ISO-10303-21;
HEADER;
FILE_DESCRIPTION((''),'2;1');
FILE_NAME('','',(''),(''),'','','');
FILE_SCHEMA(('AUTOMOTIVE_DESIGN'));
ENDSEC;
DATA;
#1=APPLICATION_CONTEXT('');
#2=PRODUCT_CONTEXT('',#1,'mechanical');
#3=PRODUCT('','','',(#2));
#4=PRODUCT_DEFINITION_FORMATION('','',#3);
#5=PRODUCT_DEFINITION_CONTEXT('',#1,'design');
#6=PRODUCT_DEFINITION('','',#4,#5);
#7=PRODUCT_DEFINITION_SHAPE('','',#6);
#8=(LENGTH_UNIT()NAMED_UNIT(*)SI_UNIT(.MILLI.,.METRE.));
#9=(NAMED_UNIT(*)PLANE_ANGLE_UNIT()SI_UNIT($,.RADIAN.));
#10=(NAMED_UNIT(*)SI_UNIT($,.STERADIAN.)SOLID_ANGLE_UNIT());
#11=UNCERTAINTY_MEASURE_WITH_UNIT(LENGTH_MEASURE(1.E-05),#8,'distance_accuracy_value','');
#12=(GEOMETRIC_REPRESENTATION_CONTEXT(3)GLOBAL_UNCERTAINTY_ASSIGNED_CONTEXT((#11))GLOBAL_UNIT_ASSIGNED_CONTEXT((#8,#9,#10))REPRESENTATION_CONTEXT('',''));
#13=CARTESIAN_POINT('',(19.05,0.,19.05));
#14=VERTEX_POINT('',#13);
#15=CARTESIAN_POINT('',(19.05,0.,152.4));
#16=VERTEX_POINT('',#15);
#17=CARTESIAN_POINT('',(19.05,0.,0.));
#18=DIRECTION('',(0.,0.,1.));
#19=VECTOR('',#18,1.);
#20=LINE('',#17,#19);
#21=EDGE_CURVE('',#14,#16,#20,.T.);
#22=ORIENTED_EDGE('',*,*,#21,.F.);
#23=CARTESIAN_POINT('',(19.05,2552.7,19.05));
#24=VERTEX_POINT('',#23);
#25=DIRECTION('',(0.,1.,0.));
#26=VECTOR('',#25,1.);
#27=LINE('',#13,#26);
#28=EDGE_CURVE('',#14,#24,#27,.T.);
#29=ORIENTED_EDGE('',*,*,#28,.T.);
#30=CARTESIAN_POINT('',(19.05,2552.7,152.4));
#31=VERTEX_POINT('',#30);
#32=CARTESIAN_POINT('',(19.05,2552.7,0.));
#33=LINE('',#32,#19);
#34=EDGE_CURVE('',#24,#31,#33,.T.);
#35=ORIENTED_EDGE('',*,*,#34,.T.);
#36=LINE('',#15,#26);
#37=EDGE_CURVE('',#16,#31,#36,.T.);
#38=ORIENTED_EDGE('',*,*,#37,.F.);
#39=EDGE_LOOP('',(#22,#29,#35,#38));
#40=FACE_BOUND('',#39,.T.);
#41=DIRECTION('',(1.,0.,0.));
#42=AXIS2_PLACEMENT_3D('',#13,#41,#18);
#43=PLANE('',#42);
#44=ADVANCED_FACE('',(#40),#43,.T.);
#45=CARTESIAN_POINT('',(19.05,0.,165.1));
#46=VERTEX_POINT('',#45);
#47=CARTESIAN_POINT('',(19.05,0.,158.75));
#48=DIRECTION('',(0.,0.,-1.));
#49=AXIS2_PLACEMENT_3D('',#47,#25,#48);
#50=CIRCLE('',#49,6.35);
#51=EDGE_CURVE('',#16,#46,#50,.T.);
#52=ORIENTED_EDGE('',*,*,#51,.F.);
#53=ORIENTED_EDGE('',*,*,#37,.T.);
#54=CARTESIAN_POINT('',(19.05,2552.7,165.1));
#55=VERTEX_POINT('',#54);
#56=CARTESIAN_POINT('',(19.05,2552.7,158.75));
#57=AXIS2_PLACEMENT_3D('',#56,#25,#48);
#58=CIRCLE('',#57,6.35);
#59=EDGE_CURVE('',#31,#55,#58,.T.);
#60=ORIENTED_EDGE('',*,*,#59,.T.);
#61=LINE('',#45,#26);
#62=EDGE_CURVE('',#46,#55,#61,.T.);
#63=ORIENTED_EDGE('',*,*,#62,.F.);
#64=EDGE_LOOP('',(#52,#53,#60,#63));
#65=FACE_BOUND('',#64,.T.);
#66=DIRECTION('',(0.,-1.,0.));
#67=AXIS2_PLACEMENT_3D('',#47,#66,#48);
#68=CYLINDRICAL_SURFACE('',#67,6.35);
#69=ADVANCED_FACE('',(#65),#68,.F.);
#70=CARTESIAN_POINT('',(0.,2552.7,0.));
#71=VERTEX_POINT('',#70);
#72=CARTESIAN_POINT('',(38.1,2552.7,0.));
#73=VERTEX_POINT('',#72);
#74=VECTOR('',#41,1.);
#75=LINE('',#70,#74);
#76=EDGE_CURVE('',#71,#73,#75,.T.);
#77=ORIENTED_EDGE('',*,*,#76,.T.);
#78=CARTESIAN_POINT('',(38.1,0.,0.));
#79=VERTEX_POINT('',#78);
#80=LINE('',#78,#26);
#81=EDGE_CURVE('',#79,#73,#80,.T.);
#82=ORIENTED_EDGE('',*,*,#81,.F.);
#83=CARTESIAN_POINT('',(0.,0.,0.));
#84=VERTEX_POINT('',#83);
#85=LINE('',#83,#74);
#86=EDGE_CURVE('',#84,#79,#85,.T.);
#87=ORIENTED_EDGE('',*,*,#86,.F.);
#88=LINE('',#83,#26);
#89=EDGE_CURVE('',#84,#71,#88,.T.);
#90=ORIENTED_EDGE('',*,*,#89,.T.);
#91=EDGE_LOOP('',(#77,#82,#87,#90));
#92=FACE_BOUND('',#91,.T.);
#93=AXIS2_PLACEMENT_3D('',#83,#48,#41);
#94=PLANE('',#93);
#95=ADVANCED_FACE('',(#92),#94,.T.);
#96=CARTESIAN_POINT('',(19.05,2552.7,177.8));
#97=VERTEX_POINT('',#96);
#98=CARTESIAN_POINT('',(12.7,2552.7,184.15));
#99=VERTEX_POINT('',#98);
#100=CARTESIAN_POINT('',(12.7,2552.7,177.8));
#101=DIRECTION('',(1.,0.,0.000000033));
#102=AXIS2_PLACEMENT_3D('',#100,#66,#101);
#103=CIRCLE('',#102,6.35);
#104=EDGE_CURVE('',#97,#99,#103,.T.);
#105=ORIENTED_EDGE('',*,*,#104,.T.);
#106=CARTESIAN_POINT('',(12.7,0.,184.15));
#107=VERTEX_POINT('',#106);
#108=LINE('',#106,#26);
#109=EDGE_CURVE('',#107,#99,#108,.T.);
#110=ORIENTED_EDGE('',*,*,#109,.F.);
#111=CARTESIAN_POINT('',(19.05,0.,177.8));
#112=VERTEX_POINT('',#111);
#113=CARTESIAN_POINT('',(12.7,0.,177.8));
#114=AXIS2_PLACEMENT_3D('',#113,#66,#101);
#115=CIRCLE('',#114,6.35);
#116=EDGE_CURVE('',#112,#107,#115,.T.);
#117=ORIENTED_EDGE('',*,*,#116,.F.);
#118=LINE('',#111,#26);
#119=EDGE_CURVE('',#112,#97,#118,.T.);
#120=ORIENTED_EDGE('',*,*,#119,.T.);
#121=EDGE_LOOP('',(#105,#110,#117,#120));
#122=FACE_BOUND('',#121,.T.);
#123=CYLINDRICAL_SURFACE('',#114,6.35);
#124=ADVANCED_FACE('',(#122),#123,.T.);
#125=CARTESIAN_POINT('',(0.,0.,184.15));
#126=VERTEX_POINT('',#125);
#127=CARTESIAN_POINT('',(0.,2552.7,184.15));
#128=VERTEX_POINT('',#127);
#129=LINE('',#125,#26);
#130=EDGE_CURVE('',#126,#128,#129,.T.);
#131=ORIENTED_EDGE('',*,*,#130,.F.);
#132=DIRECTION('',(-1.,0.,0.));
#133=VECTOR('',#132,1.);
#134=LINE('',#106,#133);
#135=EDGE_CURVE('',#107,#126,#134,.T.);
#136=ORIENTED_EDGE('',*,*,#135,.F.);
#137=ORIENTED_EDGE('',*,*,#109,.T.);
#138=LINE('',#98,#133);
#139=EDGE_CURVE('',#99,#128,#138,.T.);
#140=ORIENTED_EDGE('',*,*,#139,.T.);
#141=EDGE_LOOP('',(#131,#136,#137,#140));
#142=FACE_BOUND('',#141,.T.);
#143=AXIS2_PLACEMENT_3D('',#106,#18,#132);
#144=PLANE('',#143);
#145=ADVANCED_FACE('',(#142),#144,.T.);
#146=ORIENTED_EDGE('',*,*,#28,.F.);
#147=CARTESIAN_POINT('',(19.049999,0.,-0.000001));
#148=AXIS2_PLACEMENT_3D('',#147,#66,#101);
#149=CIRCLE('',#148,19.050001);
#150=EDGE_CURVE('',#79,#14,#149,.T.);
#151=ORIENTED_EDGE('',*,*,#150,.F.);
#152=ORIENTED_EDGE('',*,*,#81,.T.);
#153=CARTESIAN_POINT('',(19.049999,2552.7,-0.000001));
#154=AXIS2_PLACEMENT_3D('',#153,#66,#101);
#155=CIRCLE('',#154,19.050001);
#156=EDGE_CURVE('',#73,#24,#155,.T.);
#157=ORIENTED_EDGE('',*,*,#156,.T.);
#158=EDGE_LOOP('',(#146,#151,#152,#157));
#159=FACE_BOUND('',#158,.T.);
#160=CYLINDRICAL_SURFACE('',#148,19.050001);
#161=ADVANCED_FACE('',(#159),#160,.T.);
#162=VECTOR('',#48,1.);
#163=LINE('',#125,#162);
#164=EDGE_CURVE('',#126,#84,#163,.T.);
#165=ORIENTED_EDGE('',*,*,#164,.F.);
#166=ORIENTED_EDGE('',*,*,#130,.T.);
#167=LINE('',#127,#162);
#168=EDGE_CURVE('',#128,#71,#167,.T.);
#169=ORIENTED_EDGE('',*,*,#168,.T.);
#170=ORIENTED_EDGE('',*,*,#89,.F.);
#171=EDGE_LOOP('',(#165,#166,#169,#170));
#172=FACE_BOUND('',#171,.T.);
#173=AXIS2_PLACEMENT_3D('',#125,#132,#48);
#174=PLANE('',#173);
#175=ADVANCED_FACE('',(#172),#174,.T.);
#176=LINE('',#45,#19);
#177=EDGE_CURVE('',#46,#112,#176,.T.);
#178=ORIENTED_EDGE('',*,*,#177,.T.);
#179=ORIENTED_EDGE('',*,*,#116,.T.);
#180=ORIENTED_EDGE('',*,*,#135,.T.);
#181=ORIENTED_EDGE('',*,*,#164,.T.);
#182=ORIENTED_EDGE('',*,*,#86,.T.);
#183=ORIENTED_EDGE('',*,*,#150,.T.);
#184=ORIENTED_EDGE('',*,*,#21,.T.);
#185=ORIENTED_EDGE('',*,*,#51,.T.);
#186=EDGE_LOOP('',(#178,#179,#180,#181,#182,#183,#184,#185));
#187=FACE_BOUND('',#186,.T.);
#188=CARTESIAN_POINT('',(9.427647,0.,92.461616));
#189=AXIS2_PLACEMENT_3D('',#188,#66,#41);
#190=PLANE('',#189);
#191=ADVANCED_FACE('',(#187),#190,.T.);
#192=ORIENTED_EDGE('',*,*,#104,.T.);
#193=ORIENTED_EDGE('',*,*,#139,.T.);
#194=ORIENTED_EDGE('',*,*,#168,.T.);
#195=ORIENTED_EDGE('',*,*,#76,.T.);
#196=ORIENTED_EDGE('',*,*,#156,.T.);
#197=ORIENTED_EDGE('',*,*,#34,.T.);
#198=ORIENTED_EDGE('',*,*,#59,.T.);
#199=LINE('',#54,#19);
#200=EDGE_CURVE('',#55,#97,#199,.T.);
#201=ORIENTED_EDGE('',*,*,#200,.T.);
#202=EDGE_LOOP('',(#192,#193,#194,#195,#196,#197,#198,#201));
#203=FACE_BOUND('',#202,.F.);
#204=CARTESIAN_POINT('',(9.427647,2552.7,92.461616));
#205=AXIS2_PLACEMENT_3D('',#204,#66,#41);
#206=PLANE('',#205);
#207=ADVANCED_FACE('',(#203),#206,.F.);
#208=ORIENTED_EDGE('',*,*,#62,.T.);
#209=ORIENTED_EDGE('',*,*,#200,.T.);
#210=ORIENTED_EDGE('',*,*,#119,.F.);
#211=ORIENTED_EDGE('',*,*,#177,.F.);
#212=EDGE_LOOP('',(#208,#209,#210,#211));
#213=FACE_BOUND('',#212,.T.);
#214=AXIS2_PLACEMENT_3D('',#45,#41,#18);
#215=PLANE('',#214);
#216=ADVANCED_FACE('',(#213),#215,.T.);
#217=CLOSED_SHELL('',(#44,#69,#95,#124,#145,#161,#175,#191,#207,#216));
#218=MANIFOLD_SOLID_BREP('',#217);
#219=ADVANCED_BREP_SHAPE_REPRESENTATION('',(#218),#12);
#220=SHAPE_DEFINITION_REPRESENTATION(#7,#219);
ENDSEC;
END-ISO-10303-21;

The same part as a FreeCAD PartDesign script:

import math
import FreeCAD as App
import Part
import Sketcher
from FreeCAD import Vector
Q = App.Units.Quantity

doc = App.newDocument("Part")
body = doc.addObject("PartDesign::Body", "Body")

sketch1 = body.newObject("Sketcher::SketchObject", "Sketch")
sketch1.AttachmentSupport = (doc.getObject("XZ_Plane"), [""])
sketch1.MapMode = "FlatFace"
sketch1.addGeometry(Part.LineSegment(Vector(0, 184.15, 0), Vector(0, 0, 0)), False)
sketch1.addGeometry(Part.LineSegment(Vector(0, 0, 0), Vector(38.1, 0, 0)), False)
sketch1.addGeometry(Part.ArcOfCircle(Part.Circle(Vector(19.049999, -0.000001, 0), Vector(0, 0, 1), 19.050001), math.radians(0.000002), math.radians(89.999998)), False)
sketch1.addGeometry(Part.LineSegment(Vector(19.05, 19.05, 0), Vector(19.05, 152.4, 0)), False)
sketch1.addGeometry(Part.ArcOfCircle(Part.Circle(Vector(19.05, 158.75, 0), Vector(0, 0, 1), 6.35), math.radians(90), math.radians(270)), False)
sketch1.addGeometry(Part.LineSegment(Vector(19.05, 165.1, 0), Vector(19.05, 177.8, 0)), False)
sketch1.addGeometry(Part.ArcOfCircle(Part.Circle(Vector(12.7, 177.8, 0), Vector(0, 0, 1), 6.35), math.radians(0.000002), math.radians(89.999998)), False)
sketch1.addGeometry(Part.LineSegment(Vector(12.7, 184.15, 0), Vector(0, 184.15, 0)), False)
sketch1.addConstraint(Sketcher.Constraint("Coincident", 0, 2, 1, 1))
sketch1.addConstraint(Sketcher.Constraint("Coincident", 1, 2, 2, 1))
sketch1.addConstraint(Sketcher.Constraint("Coincident", 2, 2, 3, 1))
sketch1.addConstraint(Sketcher.Constraint("Coincident", 3, 2, 4, 2))
sketch1.addConstraint(Sketcher.Constraint("Coincident", 4, 1, 5, 1))
sketch1.addConstraint(Sketcher.Constraint("Tangent", 5, 2, 6, 1))
sketch1.addConstraint(Sketcher.Constraint("Tangent", 6, 2, 7, 1))
sketch1.addConstraint(Sketcher.Constraint("Coincident", 7, 2, 0, 1))
sketch1.addConstraint(Sketcher.Constraint("Vertical", 0))
sketch1.addConstraint(Sketcher.Constraint("Horizontal", 1))
sketch1.addConstraint(Sketcher.Constraint("Vertical", 3))
sketch1.addConstraint(Sketcher.Constraint("Vertical", 5))
sketch1.addConstraint(Sketcher.Constraint("Horizontal", 7))
sketch1.addConstraint(Sketcher.Constraint("Coincident", 0, 2, -1, 1))
sketch1.addConstraint(Sketcher.Constraint("Equal", 4, 6))
sketch1.addConstraint(Sketcher.Constraint("PointOnObject", 2, 3, -1))
sketch1.addConstraint(Sketcher.Constraint("Vertical", 2, 3, 4, 3))
sketch1.addConstraint(Sketcher.Constraint("Vertical", 4, 3, 2, 2))
sketch1.addConstraint(Sketcher.Constraint("Vertical", 3, 2, 4, 1))
sketch1.addConstraint(Sketcher.Constraint("Equal", 7, 5))
sketch1.addConstraint(Sketcher.Constraint("Radius", 2, Q("0.75 in")))
sketch1.addConstraint(Sketcher.Constraint("Radius", 4, Q("0.25 in")))
sketch1.addConstraint(Sketcher.Constraint("DistanceX", 1, 1, 1, 2, Q("1.5 in")))
sketch1.addConstraint(Sketcher.Constraint("DistanceY", -1, 1, 6, 3, Q("7 in")))
pad1 = body.newObject("PartDesign::Pad", "Pad")
pad1.Profile = sketch1
pad1.Length = Q("100.5 in")
pad1.Reversed = True

doc.recompute()
